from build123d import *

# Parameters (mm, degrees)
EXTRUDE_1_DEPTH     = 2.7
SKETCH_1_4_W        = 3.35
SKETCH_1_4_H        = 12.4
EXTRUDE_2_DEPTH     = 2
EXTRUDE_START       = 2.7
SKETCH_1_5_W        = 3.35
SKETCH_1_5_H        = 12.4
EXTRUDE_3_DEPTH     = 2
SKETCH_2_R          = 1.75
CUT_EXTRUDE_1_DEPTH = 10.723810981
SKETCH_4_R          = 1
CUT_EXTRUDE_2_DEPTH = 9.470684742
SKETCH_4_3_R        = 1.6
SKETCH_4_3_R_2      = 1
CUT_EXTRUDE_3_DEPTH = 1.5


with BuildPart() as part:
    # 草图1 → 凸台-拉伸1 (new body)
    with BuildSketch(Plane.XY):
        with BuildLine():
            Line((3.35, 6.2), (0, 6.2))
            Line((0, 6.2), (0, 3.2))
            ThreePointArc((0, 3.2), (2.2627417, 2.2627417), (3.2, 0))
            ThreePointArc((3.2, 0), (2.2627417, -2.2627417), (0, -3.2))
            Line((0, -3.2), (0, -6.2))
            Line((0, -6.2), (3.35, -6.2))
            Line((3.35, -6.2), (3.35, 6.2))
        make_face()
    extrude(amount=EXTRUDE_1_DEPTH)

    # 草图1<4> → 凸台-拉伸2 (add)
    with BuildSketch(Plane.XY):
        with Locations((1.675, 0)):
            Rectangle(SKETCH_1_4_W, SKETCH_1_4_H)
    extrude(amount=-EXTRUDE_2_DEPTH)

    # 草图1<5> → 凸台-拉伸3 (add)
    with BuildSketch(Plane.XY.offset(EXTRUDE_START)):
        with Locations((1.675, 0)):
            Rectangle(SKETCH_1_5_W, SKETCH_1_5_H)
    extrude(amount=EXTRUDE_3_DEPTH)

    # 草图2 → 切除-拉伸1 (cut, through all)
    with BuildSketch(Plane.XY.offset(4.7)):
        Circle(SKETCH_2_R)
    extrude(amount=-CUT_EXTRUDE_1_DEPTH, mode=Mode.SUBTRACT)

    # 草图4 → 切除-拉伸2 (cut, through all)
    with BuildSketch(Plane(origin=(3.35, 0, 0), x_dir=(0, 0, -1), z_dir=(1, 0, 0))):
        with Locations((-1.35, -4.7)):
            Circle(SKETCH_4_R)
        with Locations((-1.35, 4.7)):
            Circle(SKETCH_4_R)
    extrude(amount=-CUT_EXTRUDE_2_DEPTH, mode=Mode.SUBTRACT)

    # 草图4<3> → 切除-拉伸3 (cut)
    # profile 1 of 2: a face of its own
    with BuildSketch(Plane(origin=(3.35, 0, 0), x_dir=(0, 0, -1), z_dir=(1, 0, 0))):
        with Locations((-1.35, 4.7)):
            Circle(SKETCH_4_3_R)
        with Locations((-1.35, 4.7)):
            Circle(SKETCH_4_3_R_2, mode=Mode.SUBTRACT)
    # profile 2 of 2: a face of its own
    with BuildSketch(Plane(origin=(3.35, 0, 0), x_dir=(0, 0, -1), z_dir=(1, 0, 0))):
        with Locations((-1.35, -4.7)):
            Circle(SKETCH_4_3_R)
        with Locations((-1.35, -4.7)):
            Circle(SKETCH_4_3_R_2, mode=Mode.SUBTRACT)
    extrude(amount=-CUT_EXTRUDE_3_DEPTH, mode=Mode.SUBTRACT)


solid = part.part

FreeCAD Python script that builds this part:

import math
import FreeCAD as App
import Part
import Sketcher

V = App.Vector

doc = App.newDocument("Part")
body = doc.addObject("PartDesign::Body", "Body")

# Sketch on XY plane
sketch1 = body.newObject("Sketcher::SketchObject", "Sketch")
sketch1.AttachmentSupport = (doc.getObject("XY_Plane"), [""])
sketch1.MapMode = "FlatFace"
sketch1.addGeometry([
    Part.LineSegment(V(3.35, 6.2, 0), V(0, 6.2, 0)),  # 0
    Part.LineSegment(V(0, 6.2, 0), V(0, 3.2, 0)),  # 1
    Part.ArcOfCircle(Part.Circle(V(0, 0, 0), V(0, 0, 1), 3.2), math.radians(0), math.radians(90)),  # 2
    Part.ArcOfCircle(Part.Circle(V(0, 0, 0), V(0, 0, 1), 3.2), math.radians(-90), math.radians(0)),  # 3
    Part.LineSegment(V(0, -3.2, 0), V(0, -6.2, 0)),  # 4
    Part.LineSegment(V(0, -6.2, 0), V(3.35, -6.2, 0)),  # 5
    Part.LineSegment(V(3.35, -6.2, 0), V(3.35, 6.2, 0)),  # 6
], False)
sketch1.addConstraint([
    Sketcher.Constraint("Coincident", 0, 2, 1, 1),
    Sketcher.Constraint("Coincident", 1, 2, 2, 2),
    Sketcher.Constraint("Tangent", 2, 1, 3, 2),
    Sketcher.Constraint("Coincident", 3, 1, 4, 1),
    Sketcher.Constraint("Coincident", 4, 2, 5, 1),
    Sketcher.Constraint("Coincident", 5, 2, 6, 1),
    Sketcher.Constraint("Coincident", 6, 2, 0, 1),
    Sketcher.Constraint("Horizontal", 0),
    Sketcher.Constraint("Vertical", 1),
    Sketcher.Constraint("Vertical", 4),
    Sketcher.Constraint("Horizontal", 5),
    Sketcher.Constraint("Vertical", 6),
    Sketcher.Constraint("Coincident", 2, 3, -1, 1),
    Sketcher.Constraint("Equal", 2, 3),
    Sketcher.Constraint("Symmetric", 0, 2, 4, 2, -1, 1),
    Sketcher.Constraint("PointOnObject", 0, 2, -2),
    Sketcher.Constraint("PointOnObject", 2, 1, -1),
    Sketcher.Constraint("Radius", 2, 3.2),
    Sketcher.Constraint("DistanceY", 1, 2, 1, 1, 3.0),
    Sketcher.Constraint("DistanceX", 0, 2, 0, 1, 3.35),
])
pad1 = body.newObject("PartDesign::Pad", "Pad")
pad1.Profile = sketch1
pad1.Length = 2.7

# Sketch on XY plane
sketch2 = body.newObject("Sketcher::SketchObject", "Sketch001")
sketch2.AttachmentSupport = (doc.getObject("XY_Plane"), [""])
sketch2.MapMode = "FlatFace"
sketch2.addGeometry([
    Part.LineSegment(V(0, 6.2, 0), V(0, -6.2, 0)),
    Part.LineSegment(V(0, -6.2, 0), V(3.35, -6.2, 0)),
    Part.LineSegment(V(3.35, -6.2, 0), V(3.35, 6.2, 0)),
    Part.LineSegment(V(3.35, 6.2, 0), V(0, 6.2, 0)),
], False)
sketch2.addConstraint([
    Sketcher.Constraint("Coincident", 0, 2, 1, 1),
    Sketcher.Constraint("Coincident", 1, 2, 2, 1),
    Sketcher.Constraint("Coincident", 2, 2, 3, 1),
    Sketcher.Constraint("Coincident", 3, 2, 0, 1),
    Sketcher.Constraint("Vertical", 0),
    Sketcher.Constraint("Horizontal", 1),
    Sketcher.Constraint("Vertical", 2),
    Sketcher.Constraint("Horizontal", 3),
    Sketcher.Constraint("Symmetric", 0, 2, 3, 2, -1, 1),
    Sketcher.Constraint("DistanceY", 0, 2, 0, 1, 12.4),
    Sketcher.Constraint("DistanceX", 1, 1, 1, 2, 3.35),
])
pad2 = body.newObject("PartDesign::Pad", "Pad001")
pad2.Profile = sketch2
pad2.Length = 2
pad2.Reversed = True

# Sketch on XY plane
sketch3 = body.newObject("Sketcher::SketchObject", "Sketch002")
sketch3.AttachmentSupport = (doc.getObject("XY_Plane"), [""])
sketch3.MapMode = "FlatFace"
sketch3.AttachmentOffset = App.Placement(V(0, 0, 2.7), App.Rotation())
sketch3.addGeometry([
    Part.LineSegment(V(0, 6.2, 0), V(0, -6.2, 0)),
    Part.LineSegment(V(0, -6.2, 0), V(3.35, -6.2, 0)),
    Part.LineSegment(V(3.35, -6.2, 0), V(3.35, 6.2, 0)),
    Part.LineSegment(V(3.35, 6.2, 0), V(0, 6.2, 0)),
], False)
sketch3.addConstraint([
    Sketcher.Constraint("Coincident", 0, 2, 1, 1),
    Sketcher.Constraint("Coincident", 1, 2, 2, 1),
    Sketcher.Constraint("Coincident", 2, 2, 3, 1),
    Sketcher.Constraint("Coincident", 3, 2, 0, 1),
    Sketcher.Constraint("Vertical", 0),
    Sketcher.Constraint("Horizontal", 1),
    Sketcher.Constraint("Vertical", 2),
    Sketcher.Constraint("Horizontal", 3),
    Sketcher.Constraint("Symmetric", 0, 2, 3, 2, -1, 1),
    Sketcher.Constraint("DistanceY", 0, 2, 0, 1, 12.4),
    Sketcher.Constraint("DistanceX", 1, 1, 1, 2, 3.35),
])
pad3 = body.newObject("PartDesign::Pad", "Pad002")
pad3.Profile = sketch3
pad3.Length = 2

# Sketch on XY plane
sketch4 = body.newObject("Sketcher::SketchObject", "Sketch003")
sketch4.AttachmentSupport = (doc.getObject("XY_Plane"), [""])
sketch4.MapMode = "FlatFace"
sketch4.AttachmentOffset = App.Placement(V(0, 0, 4.7), App.Rotation())
sketch4.addGeometry(Part.Circle(V(0, 0, 0), V(0, 0, 1), 1.75), False)
sketch4.addConstraint([
    Sketcher.Constraint("Coincident", 0, 3, -1, 1),
    Sketcher.Constraint("Diameter", 0, 3.5),
])
pocket1 = body.newObject("PartDesign::Pocket", "Pocket")
pocket1.Profile = sketch4
pocket1.Type = "ThroughAll"

# Sketch on YZ plane
sketch5 = body.newObject("Sketcher::SketchObject", "Sketch004")
sketch5.AttachmentSupport = (doc.getObject("YZ_Plane"), [""])
sketch5.MapMode = "FlatFace"
sketch5.AttachmentOffset = App.Placement(V(0, 0, 3.35), App.Rotation())
sketch5.addGeometry([
    Part.Circle(V(-4.7, 1.35, 0), V(0, 0, 1), 1),
    Part.Circle(V(4.7, 1.35, 0), V(0, 0, 1), 1),
], False)
sketch5.addConstraint([
    Sketcher.Constraint("Equal", 0, 1),
    Sketcher.Constraint("Symmetric", 0, 3, 1, 3, -2),
    Sketcher.Constraint("Diameter", 0, 2.0),
    Sketcher.Constraint("DistanceX", 0, 3, -1, 1, 4.7),
    Sketcher.Constraint("DistanceY", -1, 1, 0, 3, 1.35),
])
pocket2 = body.newObject("PartDesign::Pocket", "Pocket001")
pocket2.Profile = sketch5
pocket2.Type = "ThroughAll"

# Sketch on YZ plane
sketch6 = body.newObject("Sketcher::SketchObject", "Sketch005")
sketch6.AttachmentSupport = (doc.getObject("YZ_Plane"), [""])
sketch6.MapMode = "FlatFace"
sketch6.AttachmentOffset = App.Placement(V(0, 0, 3.35), App.Rotation())
sketch6.addGeometry([
    Part.Circle(V(4.7, 1.35, 0), V(0, 0, 1), 1.6),
    Part.Circle(V(4.7, 1.35, 0), V(0, 0, 1), 1),
    Part.Circle(V(-4.7, 1.35, 0), V(0, 0, 1), 1.6),
    Part.Circle(V(-4.7, 1.35, 0), V(0, 0, 1), 1),
], False)
sketch6.addConstraint([
    Sketcher.Constraint("Coincident", 1, 3, 0, 3),
    Sketcher.Constraint("Coincident", 3, 3, 2, 3),
    Sketcher.Constraint("Equal", 0, 2),
    Sketcher.Constraint("Equal", 1, 3),
    Sketcher.Constraint("Symmetric", 0, 3, 2, 3, -2),
    Sketcher.Constraint("Diameter", 1, 2.0),
    Sketcher.Constraint("Diameter", 0, 3.2),
    Sketcher.Constraint("DistanceX", -1, 1, 0, 3, 4.7),
    Sketcher.Constraint("DistanceY", -1, 1, 0, 3, 1.35),
])
pocket3 = body.newObject("PartDesign::Pocket", "Pocket002")
pocket3.Profile = sketch6
pocket3.Length = 1.5

doc.recompute()
